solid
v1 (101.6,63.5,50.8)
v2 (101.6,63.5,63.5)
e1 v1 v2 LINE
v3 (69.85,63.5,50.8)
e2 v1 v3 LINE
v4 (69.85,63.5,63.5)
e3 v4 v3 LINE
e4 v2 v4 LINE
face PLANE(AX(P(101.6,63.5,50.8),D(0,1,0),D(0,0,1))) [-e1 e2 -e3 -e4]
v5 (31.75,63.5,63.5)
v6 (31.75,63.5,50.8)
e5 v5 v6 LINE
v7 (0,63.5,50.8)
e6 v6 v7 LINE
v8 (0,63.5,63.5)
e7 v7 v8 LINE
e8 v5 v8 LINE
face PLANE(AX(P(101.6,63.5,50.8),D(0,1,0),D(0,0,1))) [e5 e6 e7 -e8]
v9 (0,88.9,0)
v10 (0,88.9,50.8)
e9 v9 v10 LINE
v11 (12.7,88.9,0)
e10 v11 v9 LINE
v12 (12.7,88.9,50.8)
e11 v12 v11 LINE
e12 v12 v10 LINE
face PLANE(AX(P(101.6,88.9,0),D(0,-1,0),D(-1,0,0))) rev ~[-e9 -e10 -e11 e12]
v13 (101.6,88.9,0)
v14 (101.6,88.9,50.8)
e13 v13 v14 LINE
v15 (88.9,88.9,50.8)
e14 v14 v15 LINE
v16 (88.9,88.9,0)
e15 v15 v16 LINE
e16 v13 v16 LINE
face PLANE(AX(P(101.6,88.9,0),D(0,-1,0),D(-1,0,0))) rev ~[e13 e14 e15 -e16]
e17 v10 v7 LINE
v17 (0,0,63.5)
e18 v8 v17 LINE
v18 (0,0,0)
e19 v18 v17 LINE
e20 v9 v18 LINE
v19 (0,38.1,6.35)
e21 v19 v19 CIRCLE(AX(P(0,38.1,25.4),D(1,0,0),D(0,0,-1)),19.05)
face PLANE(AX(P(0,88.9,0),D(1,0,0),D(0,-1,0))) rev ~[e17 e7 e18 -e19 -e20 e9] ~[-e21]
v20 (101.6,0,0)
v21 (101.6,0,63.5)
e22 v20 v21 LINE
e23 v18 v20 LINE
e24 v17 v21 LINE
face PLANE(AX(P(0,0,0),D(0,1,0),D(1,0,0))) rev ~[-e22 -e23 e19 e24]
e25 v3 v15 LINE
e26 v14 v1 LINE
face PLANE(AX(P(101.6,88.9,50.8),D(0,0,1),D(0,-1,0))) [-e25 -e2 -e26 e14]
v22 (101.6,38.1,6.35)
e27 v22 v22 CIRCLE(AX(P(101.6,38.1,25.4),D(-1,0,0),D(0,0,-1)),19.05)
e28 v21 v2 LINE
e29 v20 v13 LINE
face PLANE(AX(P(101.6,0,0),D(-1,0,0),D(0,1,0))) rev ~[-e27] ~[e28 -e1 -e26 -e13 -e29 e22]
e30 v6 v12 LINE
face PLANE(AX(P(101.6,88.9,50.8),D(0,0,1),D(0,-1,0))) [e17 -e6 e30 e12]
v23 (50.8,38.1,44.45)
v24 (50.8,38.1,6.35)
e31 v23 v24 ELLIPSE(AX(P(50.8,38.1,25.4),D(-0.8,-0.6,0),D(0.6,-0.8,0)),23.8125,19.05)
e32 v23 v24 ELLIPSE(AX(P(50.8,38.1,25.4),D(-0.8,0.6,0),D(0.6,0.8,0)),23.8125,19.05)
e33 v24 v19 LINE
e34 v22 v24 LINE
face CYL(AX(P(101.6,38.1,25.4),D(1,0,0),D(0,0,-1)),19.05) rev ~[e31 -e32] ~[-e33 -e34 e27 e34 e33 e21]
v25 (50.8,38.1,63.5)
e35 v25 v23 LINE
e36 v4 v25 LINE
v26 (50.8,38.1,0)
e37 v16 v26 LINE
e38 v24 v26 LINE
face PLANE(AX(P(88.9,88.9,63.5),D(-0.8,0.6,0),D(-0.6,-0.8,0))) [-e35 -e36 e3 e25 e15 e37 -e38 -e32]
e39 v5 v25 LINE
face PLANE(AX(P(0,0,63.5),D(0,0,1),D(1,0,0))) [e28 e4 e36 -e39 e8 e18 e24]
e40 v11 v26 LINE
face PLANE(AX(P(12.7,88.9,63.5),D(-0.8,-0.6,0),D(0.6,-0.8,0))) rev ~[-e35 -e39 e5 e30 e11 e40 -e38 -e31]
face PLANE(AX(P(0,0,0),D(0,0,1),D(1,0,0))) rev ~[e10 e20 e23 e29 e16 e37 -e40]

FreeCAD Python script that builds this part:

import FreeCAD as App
import Part
import Sketcher
Q = App.Units.Quantity


def add_polygon(sketch, points):
    """Adds a closed chain of lines whose ends are joined by coincident constraints."""
    first, n = sketch.GeometryCount, len(points)
    for a, b in zip(points, points[1:] + points[:1]):
        sketch.addGeometry(Part.LineSegment(App.Vector(*a, 0), App.Vector(*b, 0)), False)
    for i in range(n):
        sketch.addConstraint(Sketcher.Constraint("Coincident", first + i, 2, first + (i + 1) % n, 1))

doc = App.newDocument("Part")
params = doc.addObject("Spreadsheet::Sheet", "Params")
for row, (alias, value) in enumerate([
    ("sketch1_width", "4 in"),
    ("sketch1_height", "3.5 in"),
    ("pad1_length", "2.5 in"),
    ("sketch2_width", "3 in"),
    ("pocket1_length", "2.5 in"),
    ("sketch3_diameter", "1.5 in"),
    ("sketch3_width", "1 in"),
    ("sketch3_height", "0.5 in"),
    ("pocket2_length", "4 in"),
], start=1):
    params.set(f"A{row}", alias)
    params.set(f"B{row}", "=" + value)
    params.setAlias(f"B{row}", alias)

body = doc.addObject("PartDesign::Body", "Body")

# Sketch on XY plane
sketch1 = doc.addObject("Sketcher::SketchObject", "Sketch")
body.addObject(sketch1)
sketch1.AttachmentSupport = (doc.XY_Plane, [""])
sketch1.MapMode = "FlatFace"
add_polygon(sketch1, [(0, 88.9), (0, 0), (101.6, 0), (101.6, 88.9)])  # lines 0-3
sketch1.addConstraint([
    Sketcher.Constraint("Vertical", 0),
    Sketcher.Constraint("Horizontal", 1),
    Sketcher.Constraint("Vertical", 2),
    Sketcher.Constraint("Horizontal", 3),
    Sketcher.Constraint("Coincident", 0, 2, -1, 1),
    Sketcher.Constraint("DistanceX", 1, 1, 1, 2, Q("4 in")),
    Sketcher.Constraint("DistanceY", 0, 2, 0, 1, Q("3.5 in")),
])
sketch1.setExpression("Constraints[9]", "Params.sketch1_width")
sketch1.setExpression("Constraints[10]", "Params.sketch1_height")
pad1 = doc.addObject("PartDesign::Pad", "Pad")
body.addObject(pad1)
pad1.Profile = sketch1
pad1.setExpression("Length", "Params.pad1_length")

# Sketch on XY plane
sketch2 = doc.addObject("Sketcher::SketchObject", "Sketch001")
body.addObject(sketch2)
sketch2.AttachmentSupport = (doc.XY_Plane, [""])
sketch2.MapMode = "FlatFace"
sketch2.AttachmentOffset = App.Placement(App.Vector(0, 0, 2.5 * 25.4), App.Rotation())
add_polygon(sketch2, [(50.8, 38.1), (88.9, 88.9), (12.7, 88.9)])  # lines 0-2
sketch2.addConstraint([
    Sketcher.Constraint("Horizontal", 1),
    Sketcher.Constraint("Equal", 0, 2),
    Sketcher.Constraint("DistanceX", 1, 2, 1, 1, Q("3 in")),
    Sketcher.Constraint("DistanceX", -1, 1, 2, 2, Q("2 in")),
    Sketcher.Constraint("DistanceY", 2, 2, 1, 2, Q("2 in")),
    Sketcher.Constraint("DistanceY", -1, 1, 0, 2, Q("3.5 in")),
])
sketch2.setExpression("Constraints[5]", "Params.sketch2_width")
pocket1 = doc.addObject("PartDesign::Pocket", "Pocket")
body.addObject(pocket1)
pocket1.Profile = sketch2
pocket1.setExpression("Length", "Params.pocket1_length")

# Sketch on YZ plane
sketch3 = doc.addObject("Sketcher::SketchObject", "Sketch002")
body.addObject(sketch3)
sketch3.AttachmentSupport = (doc.YZ_Plane, [""])
sketch3.MapMode = "FlatFace"
sketch3.AttachmentOffset = App.Placement(App.Vector(0, 0, 4 * 25.4), App.Rotation())
add_polygon(sketch3, [(63.5, 50.8), (88.9, 50.8), (88.9, 63.5), (63.5, 63.5)])  # lines 0-3
sketch3.addGeometry(Part.Circle(App.Vector(38.1, 25.4, 0), App.Vector(0, 0, 1), 19.05), False)  # 4
sketch3.addConstraint([
    Sketcher.Constraint("Horizontal", 0),
    Sketcher.Constraint("Vertical", 1),
    Sketcher.Constraint("Horizontal", 2),
    Sketcher.Constraint("Vertical", 3),
    Sketcher.Constraint("Diameter", 4, Q("1.5 in")),
    Sketcher.Constraint("DistanceX", 0, 1, 0, 2, Q("1 in")),
    Sketcher.Constraint("DistanceY", 1, 1, 1, 2, Q("0.5 in")),
    Sketcher.Constraint("DistanceY", -1, 1, 4, 3, Q("1 in")),
    Sketcher.Constraint("DistanceY", -1, 1, 0, 2, Q("2 in")),
    Sketcher.Constraint("DistanceX", 4, 3, 0, 2, Q("2 in")),
    Sketcher.Constraint("DistanceX", -1, 1, 4, 3, Q("1.5 in")),
])
sketch3.setExpression("Constraints[8]", "Params.sketch3_diameter")
sketch3.setExpression("Constraints[9]", "Params.sketch3_width")
sketch3.setExpression("Constraints[10]", "Params.sketch3_height")
pocket2 = doc.addObject("PartDesign::Pocket", "Pocket001")
body.addObject(pocket2)
pocket2.Profile = sketch3
pocket2.setExpression("Length", "Params.pocket2_length")

doc.recompute()
